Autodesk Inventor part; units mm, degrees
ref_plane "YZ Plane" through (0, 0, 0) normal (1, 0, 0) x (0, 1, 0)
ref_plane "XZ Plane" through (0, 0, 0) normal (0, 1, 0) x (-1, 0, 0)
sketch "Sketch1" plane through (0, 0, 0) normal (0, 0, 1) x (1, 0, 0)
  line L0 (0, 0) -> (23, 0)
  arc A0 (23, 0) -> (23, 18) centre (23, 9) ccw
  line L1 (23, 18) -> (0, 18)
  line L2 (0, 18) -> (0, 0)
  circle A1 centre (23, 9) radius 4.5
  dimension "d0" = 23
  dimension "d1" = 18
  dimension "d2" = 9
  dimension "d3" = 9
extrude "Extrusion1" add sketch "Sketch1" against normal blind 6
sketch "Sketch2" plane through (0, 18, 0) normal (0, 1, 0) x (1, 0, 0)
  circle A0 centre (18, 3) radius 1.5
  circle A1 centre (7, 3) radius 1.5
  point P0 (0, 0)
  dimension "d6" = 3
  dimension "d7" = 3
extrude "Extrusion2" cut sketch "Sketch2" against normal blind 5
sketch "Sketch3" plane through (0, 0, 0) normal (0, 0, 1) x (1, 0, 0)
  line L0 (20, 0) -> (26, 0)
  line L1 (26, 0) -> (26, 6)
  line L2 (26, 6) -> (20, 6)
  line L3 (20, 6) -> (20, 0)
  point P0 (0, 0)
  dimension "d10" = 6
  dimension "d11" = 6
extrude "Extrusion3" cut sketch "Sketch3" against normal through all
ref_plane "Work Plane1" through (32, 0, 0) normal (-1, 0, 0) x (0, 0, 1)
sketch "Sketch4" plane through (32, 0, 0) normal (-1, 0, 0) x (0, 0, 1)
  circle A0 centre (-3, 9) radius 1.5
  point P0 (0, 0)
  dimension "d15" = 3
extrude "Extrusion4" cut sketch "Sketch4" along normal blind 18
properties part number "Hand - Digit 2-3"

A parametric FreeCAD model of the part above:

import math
import FreeCAD as App
import Part
import Sketcher
from FreeCAD import Vector
Q = App.Units.Quantity


def add_polygon(sketch, points):
    """Adds a closed chain of lines whose ends are joined by coincident constraints."""
    first, n = sketch.GeometryCount, len(points)
    for a, b in zip(points, points[1:] + points[:1]):
        sketch.addGeometry(Part.LineSegment(App.Vector(*a, 0), App.Vector(*b, 0)), False)
    for i in range(n):
        sketch.addConstraint(Sketcher.Constraint("Coincident", first + i, 2, first + (i + 1) % n, 1))

doc = App.newDocument("Part")
body = doc.addObject("PartDesign::Body", "Body")

# Sketch on XY plane
sketch1 = body.newObject("Sketcher::SketchObject", "Sketch")
sketch1.AttachmentSupport = (doc.getObject("XY_Plane"), [""])
sketch1.MapMode = "FlatFace"
sketch1.addGeometry(Part.LineSegment(Vector(0, 18, 0), Vector(0, 0, 0)), False)
sketch1.addGeometry(Part.LineSegment(Vector(0, 0, 0), Vector(23, 0, 0)), False)
sketch1.addGeometry(Part.ArcOfCircle(Part.Circle(Vector(23, 9, 0), Vector(0, 0, 1), 9), math.radians(-90), math.radians(90)), False)
sketch1.addGeometry(Part.LineSegment(Vector(23, 18, 0), Vector(0, 18, 0)), False)
sketch1.addGeometry(Part.Circle(Vector(23, 9, 0), Vector(0, 0, 1), 4.5), False)
sketch1.addConstraint(Sketcher.Constraint("Coincident", 0, 2, 1, 1))
sketch1.addConstraint(Sketcher.Constraint("Tangent", 1, 2, 2, 1))
sketch1.addConstraint(Sketcher.Constraint("Tangent", 2, 2, 3, 1))
sketch1.addConstraint(Sketcher.Constraint("Coincident", 3, 2, 0, 1))
sketch1.addConstraint(Sketcher.Constraint("Vertical", 0))
sketch1.addConstraint(Sketcher.Constraint("Horizontal", 1))
sketch1.addConstraint(Sketcher.Constraint("Horizontal", 3))
sketch1.addConstraint(Sketcher.Constraint("Coincident", 0, 2, -1, 1))
sketch1.addConstraint(Sketcher.Constraint("Coincident", 4, 3, 2, 3))
sketch1.addConstraint(Sketcher.Constraint("Diameter", 4, Q("9 mm")))
sketch1.addConstraint(Sketcher.Constraint("Radius", 2, Q("9 mm")))
sketch1.addConstraint(Sketcher.Constraint("DistanceX", 1, 1, 1, 2, Q("23 mm")))
pad1 = body.newObject("PartDesign::Pad", "Pad")
pad1.Profile = sketch1
pad1.Length = 6
pad1.Reversed = True

# Sketch on XZ plane
sketch2 = body.newObject("Sketcher::SketchObject", "Sketch001")
sketch2.AttachmentSupport = (doc.getObject("XZ_Plane"), [""])
sketch2.MapMode = "FlatFace"
sketch2.AttachmentOffset = App.Placement(Vector(0, 0, -18), App.Rotation())
sketch2.addGeometry(Part.Circle(Vector(18, -3, 0), Vector(0, 0, 1), 1.5), False)
sketch2.addGeometry(Part.Circle(Vector(7, -3, 0), Vector(0, 0, 1), 1.5), False)
sketch2.addConstraint(Sketcher.Constraint("Equal", 0, 1))
sketch2.addConstraint(Sketcher.Constraint("Horizontal", 0, 3, 1, 3))
sketch2.addConstraint(Sketcher.Constraint("Diameter", 0, Q("3 mm")))
sketch2.addConstraint(Sketcher.Constraint("DistanceY", 0, 3, -1, 1, Q("3 mm")))
sketch2.addConstraint(Sketcher.Constraint("DistanceX", -1, 1, 0, 3, Q("18 mm")))
sketch2.addConstraint(Sketcher.Constraint("DistanceX", -1, 1, 1, 3, Q("7 mm")))
pocket1 = body.newObject("PartDesign::Pocket", "Pocket")
pocket1.Profile = sketch2
pocket1.Length = 5
pocket1.Reversed = True

# Sketch on XY plane
sketch3 = body.newObject("Sketcher::SketchObject", "Sketch002")
sketch3.AttachmentSupport = (doc.getObject("XY_Plane"), [""])
sketch3.MapMode = "FlatFace"
add_polygon(sketch3, [(20, 6), (20, 0), (26, 0), (26, 6)])  # lines 0-3
sketch3.addConstraint(Sketcher.Constraint("Vertical", 0))
sketch3.addConstraint(Sketcher.Constraint("Horizontal", 1))
sketch3.addConstraint(Sketcher.Constraint("Vertical", 2))
sketch3.addConstraint(Sketcher.Constraint("Horizontal", 3))
sketch3.addConstraint(Sketcher.Constraint("PointOnObject", 0, 2, -1))
sketch3.addConstraint(Sketcher.Constraint("Equal", 3, 0))
sketch3.addConstraint(Sketcher.Constraint("DistanceX", 1, 1, 1, 2, Q("6 mm")))
sketch3.addConstraint(Sketcher.Constraint("DistanceX", -1, 1, 0, 2, Q("20 mm")))
pocket2 = body.newObject("PartDesign::Pocket", "Pocket001")
pocket2.Profile = sketch3
pocket2.Type = "ThroughAll"

# Sketch on YZ plane
sketch4 = body.newObject("Sketcher::SketchObject", "Sketch003")
sketch4.AttachmentSupport = (doc.getObject("YZ_Plane"), [""])
sketch4.MapMode = "FlatFace"
sketch4.AttachmentOffset = App.Placement(Vector(0, 0, 32), App.Rotation())
sketch4.addGeometry(Part.Circle(Vector(9, -3, 0), Vector(0, 0, 1), 1.5), False)
sketch4.addConstraint(Sketcher.Constraint("Diameter", 0, Q("3 mm")))
sketch4.addConstraint(Sketcher.Constraint("DistanceY", 0, 3, -1, 1, Q("3 mm")))
sketch4.addConstraint(Sketcher.Constraint("DistanceX", -1, 1, 0, 3, Q("9 mm")))
pocket3 = body.newObject("PartDesign::Pocket", "Pocket002")
pocket3.Profile = sketch4
pocket3.Length = 18

doc.recompute()
